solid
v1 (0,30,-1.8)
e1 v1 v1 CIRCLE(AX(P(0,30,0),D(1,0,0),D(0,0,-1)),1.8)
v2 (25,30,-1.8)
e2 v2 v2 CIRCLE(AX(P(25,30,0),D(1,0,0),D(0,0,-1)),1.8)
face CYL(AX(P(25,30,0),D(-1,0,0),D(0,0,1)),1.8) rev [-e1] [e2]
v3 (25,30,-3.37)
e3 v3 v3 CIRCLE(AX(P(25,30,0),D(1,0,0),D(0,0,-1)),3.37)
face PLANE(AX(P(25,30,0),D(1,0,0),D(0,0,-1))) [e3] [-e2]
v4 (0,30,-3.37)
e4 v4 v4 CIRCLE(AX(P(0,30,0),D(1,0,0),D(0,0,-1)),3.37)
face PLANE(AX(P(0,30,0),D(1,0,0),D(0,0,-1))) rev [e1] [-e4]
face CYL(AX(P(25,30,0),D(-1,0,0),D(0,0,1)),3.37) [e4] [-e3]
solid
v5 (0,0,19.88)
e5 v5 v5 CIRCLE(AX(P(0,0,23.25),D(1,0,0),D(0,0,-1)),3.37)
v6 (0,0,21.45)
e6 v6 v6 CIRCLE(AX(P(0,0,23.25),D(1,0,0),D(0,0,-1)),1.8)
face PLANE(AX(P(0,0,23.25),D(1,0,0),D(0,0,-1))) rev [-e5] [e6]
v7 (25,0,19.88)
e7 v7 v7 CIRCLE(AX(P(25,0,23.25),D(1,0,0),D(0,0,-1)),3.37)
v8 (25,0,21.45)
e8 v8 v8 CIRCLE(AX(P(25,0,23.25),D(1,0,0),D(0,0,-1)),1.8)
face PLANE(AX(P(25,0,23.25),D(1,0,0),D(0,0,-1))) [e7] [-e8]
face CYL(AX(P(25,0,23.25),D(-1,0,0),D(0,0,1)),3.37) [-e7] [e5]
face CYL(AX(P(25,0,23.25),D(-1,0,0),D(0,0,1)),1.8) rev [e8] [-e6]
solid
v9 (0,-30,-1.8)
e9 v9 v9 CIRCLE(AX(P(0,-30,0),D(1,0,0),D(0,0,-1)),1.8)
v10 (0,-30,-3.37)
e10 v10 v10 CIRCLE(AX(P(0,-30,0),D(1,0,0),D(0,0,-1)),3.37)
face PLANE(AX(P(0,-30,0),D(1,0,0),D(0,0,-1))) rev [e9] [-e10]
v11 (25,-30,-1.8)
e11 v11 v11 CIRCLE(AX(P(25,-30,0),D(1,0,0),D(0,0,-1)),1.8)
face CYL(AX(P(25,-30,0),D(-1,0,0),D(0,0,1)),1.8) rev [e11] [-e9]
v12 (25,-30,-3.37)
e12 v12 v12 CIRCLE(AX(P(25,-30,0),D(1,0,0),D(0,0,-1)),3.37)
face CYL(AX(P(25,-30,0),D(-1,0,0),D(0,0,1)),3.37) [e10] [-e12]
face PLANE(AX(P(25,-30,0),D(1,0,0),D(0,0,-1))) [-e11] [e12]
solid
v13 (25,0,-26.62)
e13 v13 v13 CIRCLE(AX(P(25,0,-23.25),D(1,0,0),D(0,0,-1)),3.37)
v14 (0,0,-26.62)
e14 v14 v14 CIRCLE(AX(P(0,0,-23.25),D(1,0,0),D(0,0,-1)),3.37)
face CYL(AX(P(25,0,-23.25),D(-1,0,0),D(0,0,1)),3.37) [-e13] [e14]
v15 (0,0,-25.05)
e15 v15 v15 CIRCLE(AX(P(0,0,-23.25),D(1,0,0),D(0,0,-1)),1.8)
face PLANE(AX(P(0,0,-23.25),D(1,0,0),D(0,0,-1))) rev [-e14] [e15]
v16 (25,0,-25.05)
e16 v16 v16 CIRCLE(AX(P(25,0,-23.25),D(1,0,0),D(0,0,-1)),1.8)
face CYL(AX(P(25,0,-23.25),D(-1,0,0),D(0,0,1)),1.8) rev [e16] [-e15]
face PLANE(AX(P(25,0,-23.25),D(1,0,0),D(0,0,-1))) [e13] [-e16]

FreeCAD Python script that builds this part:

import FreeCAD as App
import Part
import Sketcher
Q = App.Units.Quantity

doc = App.newDocument("Part")
body = doc.addObject("PartDesign::Body", "Body")

# Sketch on YZ plane
sketch1 = body.newObject("Sketcher::SketchObject", "Sketch")
sketch1.AttachmentSupport = (doc.getObject("YZ_Plane"), [""])
sketch1.MapMode = "FlatFace"
sketch1.addGeometry([
    Part.Circle(App.Vector(0, 23.2, 0), App.Vector(0, 0, 1), 3.4),
    Part.Circle(App.Vector(0, 23.2, 0), App.Vector(0, 0, 1), 1.8),
], False)
sketch1.addConstraint([
    Sketcher.Constraint("Coincident", 1, 3, 0, 3),
    Sketcher.Constraint("PointOnObject", 0, 3, -2),
    Sketcher.Constraint("Diameter", 1, Q("3.6 mm")),
    Sketcher.Constraint("Diameter", 0, Q("6.74 mm")),
    Sketcher.Constraint("DistanceY", -1, 1, 0, 3, Q("23.25 mm")),
])
pad1 = body.newObject("PartDesign::Pad", "Pad")
pad1.Profile = sketch1
pad1.Length = 25
body2 = doc.addObject("PartDesign::Body", "Body001")

# Sketch on YZ plane
sketch2 = body2.newObject("Sketcher::SketchObject", "Sketch001")
sketch2.AttachmentSupport = (doc.getObject("YZ_Plane001"), [""])
sketch2.MapMode = "FlatFace"
sketch2.addGeometry([
    Part.Circle(App.Vector(30, 0, 0), App.Vector(0, 0, 1), 3.4),
    Part.Circle(App.Vector(30, 0, 0), App.Vector(0, 0, 1), 1.8),
], False)
sketch2.addConstraint([
    Sketcher.Constraint("Coincident", 1, 3, 0, 3),
    Sketcher.Constraint("PointOnObject", 0, 3, -1),
    Sketcher.Constraint("Diameter", 1, Q("3.6 mm")),
    Sketcher.Constraint("Diameter", 0, Q("6.74 mm")),
    Sketcher.Constraint("DistanceX", -1, 1, 0, 3, Q("30 mm")),
])
pad2 = body2.newObject("PartDesign::Pad", "Pad001")
pad2.Profile = sketch2
pad2.Length = 25
body3 = doc.addObject("PartDesign::Body", "Body002")

# Sketch on YZ plane
sketch3 = body3.newObject("Sketcher::SketchObject", "Sketch002")
sketch3.AttachmentSupport = (doc.getObject("YZ_Plane002"), [""])
sketch3.MapMode = "FlatFace"
sketch3.addGeometry([
    Part.Circle(App.Vector(0, -23.2, 0), App.Vector(0, 0, 1), 3.4),
    Part.Circle(App.Vector(0, -23.2, 0), App.Vector(0, 0, 1), 1.8),
], False)
sketch3.addConstraint([
    Sketcher.Constraint("Coincident", 1, 3, 0, 3),
    Sketcher.Constraint("PointOnObject", 0, 3, -2),
    Sketcher.Constraint("Diameter", 1, Q("3.6 mm")),
    Sketcher.Constraint("Diameter", 0, Q("6.74 mm")),
    Sketcher.Constraint("DistanceY", 0, 3, -1, 1, Q("23.25 mm")),
])
pad3 = body3.newObject("PartDesign::Pad", "Pad002")
pad3.Profile = sketch3
pad3.Length = 25
body4 = doc.addObject("PartDesign::Body", "Body003")

# Sketch on YZ plane
sketch4 = body4.newObject("Sketcher::SketchObject", "Sketch003")
sketch4.AttachmentSupport = (doc.getObject("YZ_Plane003"), [""])
sketch4.MapMode = "FlatFace"
sketch4.addGeometry([
    Part.Circle(App.Vector(-30, 0, 0), App.Vector(0, 0, 1), 3.4),
    Part.Circle(App.Vector(-30, 0, 0), App.Vector(0, 0, 1), 1.8),
], False)
sketch4.addConstraint([
    Sketcher.Constraint("Coincident", 1, 3, 0, 3),
    Sketcher.Constraint("PointOnObject", 0, 3, -1),
    Sketcher.Constraint("Diameter", 1, Q("3.6 mm")),
    Sketcher.Constraint("Diameter", 0, Q("6.74 mm")),
    Sketcher.Constraint("DistanceX", 0, 3, -1, 1, Q("30 mm")),
])
pad4 = body4.newObject("PartDesign::Pad", "Pad003")
pad4.Profile = sketch4
pad4.Length = 25

doc.recompute()
